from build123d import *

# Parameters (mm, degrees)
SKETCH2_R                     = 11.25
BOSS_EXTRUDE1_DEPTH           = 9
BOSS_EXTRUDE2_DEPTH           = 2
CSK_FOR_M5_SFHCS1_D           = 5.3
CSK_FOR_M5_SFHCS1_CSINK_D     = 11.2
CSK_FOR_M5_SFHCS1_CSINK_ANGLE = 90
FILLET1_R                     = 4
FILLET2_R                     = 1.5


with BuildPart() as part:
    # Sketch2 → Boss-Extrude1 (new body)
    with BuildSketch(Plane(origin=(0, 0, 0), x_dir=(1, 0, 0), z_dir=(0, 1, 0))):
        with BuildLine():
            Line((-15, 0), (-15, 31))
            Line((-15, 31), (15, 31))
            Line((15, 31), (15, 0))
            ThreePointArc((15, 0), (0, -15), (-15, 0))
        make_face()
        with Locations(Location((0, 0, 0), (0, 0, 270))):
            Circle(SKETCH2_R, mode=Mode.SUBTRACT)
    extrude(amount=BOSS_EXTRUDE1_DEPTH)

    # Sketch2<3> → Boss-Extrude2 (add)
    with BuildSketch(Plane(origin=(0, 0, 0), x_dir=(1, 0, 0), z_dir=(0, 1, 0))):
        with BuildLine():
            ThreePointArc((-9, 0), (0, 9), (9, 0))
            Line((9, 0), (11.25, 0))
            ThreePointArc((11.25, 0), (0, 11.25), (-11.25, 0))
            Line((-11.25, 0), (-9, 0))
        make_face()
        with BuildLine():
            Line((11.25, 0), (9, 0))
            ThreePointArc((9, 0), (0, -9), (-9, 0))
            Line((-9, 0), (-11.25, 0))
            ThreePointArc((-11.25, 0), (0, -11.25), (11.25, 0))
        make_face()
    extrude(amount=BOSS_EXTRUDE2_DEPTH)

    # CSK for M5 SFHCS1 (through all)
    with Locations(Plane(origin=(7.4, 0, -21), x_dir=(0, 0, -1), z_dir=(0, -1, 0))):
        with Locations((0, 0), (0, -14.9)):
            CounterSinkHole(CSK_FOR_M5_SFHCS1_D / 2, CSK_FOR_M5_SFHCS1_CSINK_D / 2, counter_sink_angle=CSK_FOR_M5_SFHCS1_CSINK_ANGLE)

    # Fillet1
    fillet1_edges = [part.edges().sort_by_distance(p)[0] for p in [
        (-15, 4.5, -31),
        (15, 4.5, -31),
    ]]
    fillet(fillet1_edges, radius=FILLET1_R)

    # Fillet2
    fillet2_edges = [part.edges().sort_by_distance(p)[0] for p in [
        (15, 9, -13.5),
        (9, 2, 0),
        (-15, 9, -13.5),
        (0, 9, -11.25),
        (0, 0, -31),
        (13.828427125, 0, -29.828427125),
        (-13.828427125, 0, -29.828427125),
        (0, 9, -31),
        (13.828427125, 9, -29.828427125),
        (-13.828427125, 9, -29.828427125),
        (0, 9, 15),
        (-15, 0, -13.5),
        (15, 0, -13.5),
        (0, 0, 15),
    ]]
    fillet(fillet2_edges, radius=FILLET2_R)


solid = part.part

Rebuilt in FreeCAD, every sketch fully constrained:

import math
import FreeCAD as App
import Part
import Sketcher
from FreeCAD import Vector


def edges_at(feature, points):
    """Names of the edges that pass closest to the given points."""
    edges = feature.Shape.Edges
    near = lambda p: min(range(len(edges)), key=lambda i: edges[i].distToShape(Part.Vertex(*p))[0])
    return sorted({f"Edge{near(p) + 1}" for p in points})

doc = App.newDocument("Part")
body = doc.addObject("PartDesign::Body", "Body")

sketch1 = body.newObject("Sketcher::SketchObject", "Sketch")
sketch1.AttachmentSupport = (doc.getObject("XZ_Plane"), [""])
sketch1.MapMode = "FlatFace"
sketch1.addGeometry(Part.LineSegment(Vector(-15, -31, 0), Vector(-15, 0, 0)), False)
sketch1.addGeometry(Part.ArcOfCircle(Part.Circle(Vector(0, 0, 0), Vector(0, 0, 1), 15), math.radians(0), math.radians(180)), False)
sketch1.addGeometry(Part.LineSegment(Vector(15, 0, 0), Vector(15, -31, 0)), False)
sketch1.addGeometry(Part.LineSegment(Vector(15, -31, 0), Vector(-15, -31, 0)), False)
sketch1.addGeometry(Part.Circle(Vector(0, 0, 0), Vector(0, 0, 1), 11.25), False)
sketch1.addConstraint(Sketcher.Constraint("Tangent", 0, 2, 1, 2))
sketch1.addConstraint(Sketcher.Constraint("Tangent", 1, 1, 2, 1))
sketch1.addConstraint(Sketcher.Constraint("Coincident", 2, 2, 3, 1))
sketch1.addConstraint(Sketcher.Constraint("Coincident", 3, 2, 0, 1))
sketch1.addConstraint(Sketcher.Constraint("Vertical", 0))
sketch1.addConstraint(Sketcher.Constraint("Vertical", 2))
sketch1.addConstraint(Sketcher.Constraint("Horizontal", 3))
sketch1.addConstraint(Sketcher.Constraint("Coincident", 1, 3, -1, 1))
sketch1.addConstraint(Sketcher.Constraint("Coincident", 4, 3, -1, 1))
sketch1.addConstraint(Sketcher.Constraint("Radius", 1, 15.0))
sketch1.addConstraint(Sketcher.Constraint("Diameter", 4, 22.5))
sketch1.addConstraint(Sketcher.Constraint("DistanceY", 0, 1, 0, 2, 31.0))
pad1 = body.newObject("PartDesign::Pad", "Pad")
pad1.Profile = sketch1
pad1.Length = 9
pad1.Reversed = True

sketch2 = body.newObject("Sketcher::SketchObject", "Sketch001")
sketch2.AttachmentSupport = (doc.getObject("XZ_Plane"), [""])
sketch2.MapMode = "FlatFace"
sketch2.addGeometry(Part.Circle(Vector(0, 0, 0), Vector(0, 0, 1), 11.25), False)
sketch2.addGeometry(Part.Circle(Vector(0, 0, 0), Vector(0, 0, 1), 9), False)
sketch2.addConstraint(Sketcher.Constraint("Coincident", 0, 3, -1, 1))
sketch2.addConstraint(Sketcher.Constraint("Coincident", 1, 3, -1, 1))
sketch2.addConstraint(Sketcher.Constraint("Diameter", 1, 18.0))
sketch2.addConstraint(Sketcher.Constraint("Diameter", 0, 22.5))
pad2 = body.newObject("PartDesign::Pad", "Pad001")
pad2.Profile = sketch2
pad2.Length = 2
pad2.Reversed = True

sketch3 = body.newObject("Sketcher::SketchObject", "Sketch002")
sketch3.AttachmentSupport = (doc.getObject("XZ_Plane"), [""])
sketch3.MapMode = "FlatFace"
sketch3.addGeometry(Part.Circle(Vector(7.4, -21, 0), Vector(0, 0, 1), 2.65), False)
sketch3.addGeometry(Part.Circle(Vector(-7.5, -21, 0), Vector(0, 0, 1), 2.65), False)
sketch3.addConstraint(Sketcher.Constraint("Equal", 0, 1))
sketch3.addConstraint(Sketcher.Constraint("Horizontal", 0, 3, 1, 3))
sketch3.addConstraint(Sketcher.Constraint("Diameter", 0, 5.3))
sketch3.addConstraint(Sketcher.Constraint("DistanceY", 0, 3, -1, 1, 21.0))
sketch3.addConstraint(Sketcher.Constraint("DistanceX", -1, 1, 0, 3, 7.4))
sketch3.addConstraint(Sketcher.Constraint("DistanceX", 1, 3, -1, 1, 7.5))
doc.recompute()
hole = body.newObject("PartDesign::Hole", "Hole")
hole.Profile = sketch3
hole.ThreadType = "None"
hole.Diameter = 5.3
hole.DepthType = "ThroughAll"
hole.HoleCutType = "Countersink"
hole.HoleCutDiameter = 11.2
hole.HoleCutCountersinkAngle = 90
doc.recompute()

fillet = body.newObject("PartDesign::Fillet", "Fillet")
fillet.Base = (hole, edges_at(hole, [(-15, 4.5, -31), (15, 4.5, -31)]))
fillet.Radius = 4
doc.recompute()

fillet2 = body.newObject("PartDesign::Fillet", "Fillet001")
fillet2.Base = (fillet, edges_at(fillet, [
    (15, 9, -13.5),
    (-9, 2, 0),
    (-15, 9, -13.5),
    (0, 9, -11.25),
    (0, 0, -31),
    (13.828, 0, -29.828),
    (-13.828, 0, -29.828),
    (0, 9, -31),
    (13.828, 9, -29.828),
    (-13.828, 9, -29.828),
    (0, 9, 15),
    (-15, 0, -13.5),
    (15, 0, -13.5),
    (0, 0, 15),
]))
fillet2.Radius = 1.5

doc.recompute()
